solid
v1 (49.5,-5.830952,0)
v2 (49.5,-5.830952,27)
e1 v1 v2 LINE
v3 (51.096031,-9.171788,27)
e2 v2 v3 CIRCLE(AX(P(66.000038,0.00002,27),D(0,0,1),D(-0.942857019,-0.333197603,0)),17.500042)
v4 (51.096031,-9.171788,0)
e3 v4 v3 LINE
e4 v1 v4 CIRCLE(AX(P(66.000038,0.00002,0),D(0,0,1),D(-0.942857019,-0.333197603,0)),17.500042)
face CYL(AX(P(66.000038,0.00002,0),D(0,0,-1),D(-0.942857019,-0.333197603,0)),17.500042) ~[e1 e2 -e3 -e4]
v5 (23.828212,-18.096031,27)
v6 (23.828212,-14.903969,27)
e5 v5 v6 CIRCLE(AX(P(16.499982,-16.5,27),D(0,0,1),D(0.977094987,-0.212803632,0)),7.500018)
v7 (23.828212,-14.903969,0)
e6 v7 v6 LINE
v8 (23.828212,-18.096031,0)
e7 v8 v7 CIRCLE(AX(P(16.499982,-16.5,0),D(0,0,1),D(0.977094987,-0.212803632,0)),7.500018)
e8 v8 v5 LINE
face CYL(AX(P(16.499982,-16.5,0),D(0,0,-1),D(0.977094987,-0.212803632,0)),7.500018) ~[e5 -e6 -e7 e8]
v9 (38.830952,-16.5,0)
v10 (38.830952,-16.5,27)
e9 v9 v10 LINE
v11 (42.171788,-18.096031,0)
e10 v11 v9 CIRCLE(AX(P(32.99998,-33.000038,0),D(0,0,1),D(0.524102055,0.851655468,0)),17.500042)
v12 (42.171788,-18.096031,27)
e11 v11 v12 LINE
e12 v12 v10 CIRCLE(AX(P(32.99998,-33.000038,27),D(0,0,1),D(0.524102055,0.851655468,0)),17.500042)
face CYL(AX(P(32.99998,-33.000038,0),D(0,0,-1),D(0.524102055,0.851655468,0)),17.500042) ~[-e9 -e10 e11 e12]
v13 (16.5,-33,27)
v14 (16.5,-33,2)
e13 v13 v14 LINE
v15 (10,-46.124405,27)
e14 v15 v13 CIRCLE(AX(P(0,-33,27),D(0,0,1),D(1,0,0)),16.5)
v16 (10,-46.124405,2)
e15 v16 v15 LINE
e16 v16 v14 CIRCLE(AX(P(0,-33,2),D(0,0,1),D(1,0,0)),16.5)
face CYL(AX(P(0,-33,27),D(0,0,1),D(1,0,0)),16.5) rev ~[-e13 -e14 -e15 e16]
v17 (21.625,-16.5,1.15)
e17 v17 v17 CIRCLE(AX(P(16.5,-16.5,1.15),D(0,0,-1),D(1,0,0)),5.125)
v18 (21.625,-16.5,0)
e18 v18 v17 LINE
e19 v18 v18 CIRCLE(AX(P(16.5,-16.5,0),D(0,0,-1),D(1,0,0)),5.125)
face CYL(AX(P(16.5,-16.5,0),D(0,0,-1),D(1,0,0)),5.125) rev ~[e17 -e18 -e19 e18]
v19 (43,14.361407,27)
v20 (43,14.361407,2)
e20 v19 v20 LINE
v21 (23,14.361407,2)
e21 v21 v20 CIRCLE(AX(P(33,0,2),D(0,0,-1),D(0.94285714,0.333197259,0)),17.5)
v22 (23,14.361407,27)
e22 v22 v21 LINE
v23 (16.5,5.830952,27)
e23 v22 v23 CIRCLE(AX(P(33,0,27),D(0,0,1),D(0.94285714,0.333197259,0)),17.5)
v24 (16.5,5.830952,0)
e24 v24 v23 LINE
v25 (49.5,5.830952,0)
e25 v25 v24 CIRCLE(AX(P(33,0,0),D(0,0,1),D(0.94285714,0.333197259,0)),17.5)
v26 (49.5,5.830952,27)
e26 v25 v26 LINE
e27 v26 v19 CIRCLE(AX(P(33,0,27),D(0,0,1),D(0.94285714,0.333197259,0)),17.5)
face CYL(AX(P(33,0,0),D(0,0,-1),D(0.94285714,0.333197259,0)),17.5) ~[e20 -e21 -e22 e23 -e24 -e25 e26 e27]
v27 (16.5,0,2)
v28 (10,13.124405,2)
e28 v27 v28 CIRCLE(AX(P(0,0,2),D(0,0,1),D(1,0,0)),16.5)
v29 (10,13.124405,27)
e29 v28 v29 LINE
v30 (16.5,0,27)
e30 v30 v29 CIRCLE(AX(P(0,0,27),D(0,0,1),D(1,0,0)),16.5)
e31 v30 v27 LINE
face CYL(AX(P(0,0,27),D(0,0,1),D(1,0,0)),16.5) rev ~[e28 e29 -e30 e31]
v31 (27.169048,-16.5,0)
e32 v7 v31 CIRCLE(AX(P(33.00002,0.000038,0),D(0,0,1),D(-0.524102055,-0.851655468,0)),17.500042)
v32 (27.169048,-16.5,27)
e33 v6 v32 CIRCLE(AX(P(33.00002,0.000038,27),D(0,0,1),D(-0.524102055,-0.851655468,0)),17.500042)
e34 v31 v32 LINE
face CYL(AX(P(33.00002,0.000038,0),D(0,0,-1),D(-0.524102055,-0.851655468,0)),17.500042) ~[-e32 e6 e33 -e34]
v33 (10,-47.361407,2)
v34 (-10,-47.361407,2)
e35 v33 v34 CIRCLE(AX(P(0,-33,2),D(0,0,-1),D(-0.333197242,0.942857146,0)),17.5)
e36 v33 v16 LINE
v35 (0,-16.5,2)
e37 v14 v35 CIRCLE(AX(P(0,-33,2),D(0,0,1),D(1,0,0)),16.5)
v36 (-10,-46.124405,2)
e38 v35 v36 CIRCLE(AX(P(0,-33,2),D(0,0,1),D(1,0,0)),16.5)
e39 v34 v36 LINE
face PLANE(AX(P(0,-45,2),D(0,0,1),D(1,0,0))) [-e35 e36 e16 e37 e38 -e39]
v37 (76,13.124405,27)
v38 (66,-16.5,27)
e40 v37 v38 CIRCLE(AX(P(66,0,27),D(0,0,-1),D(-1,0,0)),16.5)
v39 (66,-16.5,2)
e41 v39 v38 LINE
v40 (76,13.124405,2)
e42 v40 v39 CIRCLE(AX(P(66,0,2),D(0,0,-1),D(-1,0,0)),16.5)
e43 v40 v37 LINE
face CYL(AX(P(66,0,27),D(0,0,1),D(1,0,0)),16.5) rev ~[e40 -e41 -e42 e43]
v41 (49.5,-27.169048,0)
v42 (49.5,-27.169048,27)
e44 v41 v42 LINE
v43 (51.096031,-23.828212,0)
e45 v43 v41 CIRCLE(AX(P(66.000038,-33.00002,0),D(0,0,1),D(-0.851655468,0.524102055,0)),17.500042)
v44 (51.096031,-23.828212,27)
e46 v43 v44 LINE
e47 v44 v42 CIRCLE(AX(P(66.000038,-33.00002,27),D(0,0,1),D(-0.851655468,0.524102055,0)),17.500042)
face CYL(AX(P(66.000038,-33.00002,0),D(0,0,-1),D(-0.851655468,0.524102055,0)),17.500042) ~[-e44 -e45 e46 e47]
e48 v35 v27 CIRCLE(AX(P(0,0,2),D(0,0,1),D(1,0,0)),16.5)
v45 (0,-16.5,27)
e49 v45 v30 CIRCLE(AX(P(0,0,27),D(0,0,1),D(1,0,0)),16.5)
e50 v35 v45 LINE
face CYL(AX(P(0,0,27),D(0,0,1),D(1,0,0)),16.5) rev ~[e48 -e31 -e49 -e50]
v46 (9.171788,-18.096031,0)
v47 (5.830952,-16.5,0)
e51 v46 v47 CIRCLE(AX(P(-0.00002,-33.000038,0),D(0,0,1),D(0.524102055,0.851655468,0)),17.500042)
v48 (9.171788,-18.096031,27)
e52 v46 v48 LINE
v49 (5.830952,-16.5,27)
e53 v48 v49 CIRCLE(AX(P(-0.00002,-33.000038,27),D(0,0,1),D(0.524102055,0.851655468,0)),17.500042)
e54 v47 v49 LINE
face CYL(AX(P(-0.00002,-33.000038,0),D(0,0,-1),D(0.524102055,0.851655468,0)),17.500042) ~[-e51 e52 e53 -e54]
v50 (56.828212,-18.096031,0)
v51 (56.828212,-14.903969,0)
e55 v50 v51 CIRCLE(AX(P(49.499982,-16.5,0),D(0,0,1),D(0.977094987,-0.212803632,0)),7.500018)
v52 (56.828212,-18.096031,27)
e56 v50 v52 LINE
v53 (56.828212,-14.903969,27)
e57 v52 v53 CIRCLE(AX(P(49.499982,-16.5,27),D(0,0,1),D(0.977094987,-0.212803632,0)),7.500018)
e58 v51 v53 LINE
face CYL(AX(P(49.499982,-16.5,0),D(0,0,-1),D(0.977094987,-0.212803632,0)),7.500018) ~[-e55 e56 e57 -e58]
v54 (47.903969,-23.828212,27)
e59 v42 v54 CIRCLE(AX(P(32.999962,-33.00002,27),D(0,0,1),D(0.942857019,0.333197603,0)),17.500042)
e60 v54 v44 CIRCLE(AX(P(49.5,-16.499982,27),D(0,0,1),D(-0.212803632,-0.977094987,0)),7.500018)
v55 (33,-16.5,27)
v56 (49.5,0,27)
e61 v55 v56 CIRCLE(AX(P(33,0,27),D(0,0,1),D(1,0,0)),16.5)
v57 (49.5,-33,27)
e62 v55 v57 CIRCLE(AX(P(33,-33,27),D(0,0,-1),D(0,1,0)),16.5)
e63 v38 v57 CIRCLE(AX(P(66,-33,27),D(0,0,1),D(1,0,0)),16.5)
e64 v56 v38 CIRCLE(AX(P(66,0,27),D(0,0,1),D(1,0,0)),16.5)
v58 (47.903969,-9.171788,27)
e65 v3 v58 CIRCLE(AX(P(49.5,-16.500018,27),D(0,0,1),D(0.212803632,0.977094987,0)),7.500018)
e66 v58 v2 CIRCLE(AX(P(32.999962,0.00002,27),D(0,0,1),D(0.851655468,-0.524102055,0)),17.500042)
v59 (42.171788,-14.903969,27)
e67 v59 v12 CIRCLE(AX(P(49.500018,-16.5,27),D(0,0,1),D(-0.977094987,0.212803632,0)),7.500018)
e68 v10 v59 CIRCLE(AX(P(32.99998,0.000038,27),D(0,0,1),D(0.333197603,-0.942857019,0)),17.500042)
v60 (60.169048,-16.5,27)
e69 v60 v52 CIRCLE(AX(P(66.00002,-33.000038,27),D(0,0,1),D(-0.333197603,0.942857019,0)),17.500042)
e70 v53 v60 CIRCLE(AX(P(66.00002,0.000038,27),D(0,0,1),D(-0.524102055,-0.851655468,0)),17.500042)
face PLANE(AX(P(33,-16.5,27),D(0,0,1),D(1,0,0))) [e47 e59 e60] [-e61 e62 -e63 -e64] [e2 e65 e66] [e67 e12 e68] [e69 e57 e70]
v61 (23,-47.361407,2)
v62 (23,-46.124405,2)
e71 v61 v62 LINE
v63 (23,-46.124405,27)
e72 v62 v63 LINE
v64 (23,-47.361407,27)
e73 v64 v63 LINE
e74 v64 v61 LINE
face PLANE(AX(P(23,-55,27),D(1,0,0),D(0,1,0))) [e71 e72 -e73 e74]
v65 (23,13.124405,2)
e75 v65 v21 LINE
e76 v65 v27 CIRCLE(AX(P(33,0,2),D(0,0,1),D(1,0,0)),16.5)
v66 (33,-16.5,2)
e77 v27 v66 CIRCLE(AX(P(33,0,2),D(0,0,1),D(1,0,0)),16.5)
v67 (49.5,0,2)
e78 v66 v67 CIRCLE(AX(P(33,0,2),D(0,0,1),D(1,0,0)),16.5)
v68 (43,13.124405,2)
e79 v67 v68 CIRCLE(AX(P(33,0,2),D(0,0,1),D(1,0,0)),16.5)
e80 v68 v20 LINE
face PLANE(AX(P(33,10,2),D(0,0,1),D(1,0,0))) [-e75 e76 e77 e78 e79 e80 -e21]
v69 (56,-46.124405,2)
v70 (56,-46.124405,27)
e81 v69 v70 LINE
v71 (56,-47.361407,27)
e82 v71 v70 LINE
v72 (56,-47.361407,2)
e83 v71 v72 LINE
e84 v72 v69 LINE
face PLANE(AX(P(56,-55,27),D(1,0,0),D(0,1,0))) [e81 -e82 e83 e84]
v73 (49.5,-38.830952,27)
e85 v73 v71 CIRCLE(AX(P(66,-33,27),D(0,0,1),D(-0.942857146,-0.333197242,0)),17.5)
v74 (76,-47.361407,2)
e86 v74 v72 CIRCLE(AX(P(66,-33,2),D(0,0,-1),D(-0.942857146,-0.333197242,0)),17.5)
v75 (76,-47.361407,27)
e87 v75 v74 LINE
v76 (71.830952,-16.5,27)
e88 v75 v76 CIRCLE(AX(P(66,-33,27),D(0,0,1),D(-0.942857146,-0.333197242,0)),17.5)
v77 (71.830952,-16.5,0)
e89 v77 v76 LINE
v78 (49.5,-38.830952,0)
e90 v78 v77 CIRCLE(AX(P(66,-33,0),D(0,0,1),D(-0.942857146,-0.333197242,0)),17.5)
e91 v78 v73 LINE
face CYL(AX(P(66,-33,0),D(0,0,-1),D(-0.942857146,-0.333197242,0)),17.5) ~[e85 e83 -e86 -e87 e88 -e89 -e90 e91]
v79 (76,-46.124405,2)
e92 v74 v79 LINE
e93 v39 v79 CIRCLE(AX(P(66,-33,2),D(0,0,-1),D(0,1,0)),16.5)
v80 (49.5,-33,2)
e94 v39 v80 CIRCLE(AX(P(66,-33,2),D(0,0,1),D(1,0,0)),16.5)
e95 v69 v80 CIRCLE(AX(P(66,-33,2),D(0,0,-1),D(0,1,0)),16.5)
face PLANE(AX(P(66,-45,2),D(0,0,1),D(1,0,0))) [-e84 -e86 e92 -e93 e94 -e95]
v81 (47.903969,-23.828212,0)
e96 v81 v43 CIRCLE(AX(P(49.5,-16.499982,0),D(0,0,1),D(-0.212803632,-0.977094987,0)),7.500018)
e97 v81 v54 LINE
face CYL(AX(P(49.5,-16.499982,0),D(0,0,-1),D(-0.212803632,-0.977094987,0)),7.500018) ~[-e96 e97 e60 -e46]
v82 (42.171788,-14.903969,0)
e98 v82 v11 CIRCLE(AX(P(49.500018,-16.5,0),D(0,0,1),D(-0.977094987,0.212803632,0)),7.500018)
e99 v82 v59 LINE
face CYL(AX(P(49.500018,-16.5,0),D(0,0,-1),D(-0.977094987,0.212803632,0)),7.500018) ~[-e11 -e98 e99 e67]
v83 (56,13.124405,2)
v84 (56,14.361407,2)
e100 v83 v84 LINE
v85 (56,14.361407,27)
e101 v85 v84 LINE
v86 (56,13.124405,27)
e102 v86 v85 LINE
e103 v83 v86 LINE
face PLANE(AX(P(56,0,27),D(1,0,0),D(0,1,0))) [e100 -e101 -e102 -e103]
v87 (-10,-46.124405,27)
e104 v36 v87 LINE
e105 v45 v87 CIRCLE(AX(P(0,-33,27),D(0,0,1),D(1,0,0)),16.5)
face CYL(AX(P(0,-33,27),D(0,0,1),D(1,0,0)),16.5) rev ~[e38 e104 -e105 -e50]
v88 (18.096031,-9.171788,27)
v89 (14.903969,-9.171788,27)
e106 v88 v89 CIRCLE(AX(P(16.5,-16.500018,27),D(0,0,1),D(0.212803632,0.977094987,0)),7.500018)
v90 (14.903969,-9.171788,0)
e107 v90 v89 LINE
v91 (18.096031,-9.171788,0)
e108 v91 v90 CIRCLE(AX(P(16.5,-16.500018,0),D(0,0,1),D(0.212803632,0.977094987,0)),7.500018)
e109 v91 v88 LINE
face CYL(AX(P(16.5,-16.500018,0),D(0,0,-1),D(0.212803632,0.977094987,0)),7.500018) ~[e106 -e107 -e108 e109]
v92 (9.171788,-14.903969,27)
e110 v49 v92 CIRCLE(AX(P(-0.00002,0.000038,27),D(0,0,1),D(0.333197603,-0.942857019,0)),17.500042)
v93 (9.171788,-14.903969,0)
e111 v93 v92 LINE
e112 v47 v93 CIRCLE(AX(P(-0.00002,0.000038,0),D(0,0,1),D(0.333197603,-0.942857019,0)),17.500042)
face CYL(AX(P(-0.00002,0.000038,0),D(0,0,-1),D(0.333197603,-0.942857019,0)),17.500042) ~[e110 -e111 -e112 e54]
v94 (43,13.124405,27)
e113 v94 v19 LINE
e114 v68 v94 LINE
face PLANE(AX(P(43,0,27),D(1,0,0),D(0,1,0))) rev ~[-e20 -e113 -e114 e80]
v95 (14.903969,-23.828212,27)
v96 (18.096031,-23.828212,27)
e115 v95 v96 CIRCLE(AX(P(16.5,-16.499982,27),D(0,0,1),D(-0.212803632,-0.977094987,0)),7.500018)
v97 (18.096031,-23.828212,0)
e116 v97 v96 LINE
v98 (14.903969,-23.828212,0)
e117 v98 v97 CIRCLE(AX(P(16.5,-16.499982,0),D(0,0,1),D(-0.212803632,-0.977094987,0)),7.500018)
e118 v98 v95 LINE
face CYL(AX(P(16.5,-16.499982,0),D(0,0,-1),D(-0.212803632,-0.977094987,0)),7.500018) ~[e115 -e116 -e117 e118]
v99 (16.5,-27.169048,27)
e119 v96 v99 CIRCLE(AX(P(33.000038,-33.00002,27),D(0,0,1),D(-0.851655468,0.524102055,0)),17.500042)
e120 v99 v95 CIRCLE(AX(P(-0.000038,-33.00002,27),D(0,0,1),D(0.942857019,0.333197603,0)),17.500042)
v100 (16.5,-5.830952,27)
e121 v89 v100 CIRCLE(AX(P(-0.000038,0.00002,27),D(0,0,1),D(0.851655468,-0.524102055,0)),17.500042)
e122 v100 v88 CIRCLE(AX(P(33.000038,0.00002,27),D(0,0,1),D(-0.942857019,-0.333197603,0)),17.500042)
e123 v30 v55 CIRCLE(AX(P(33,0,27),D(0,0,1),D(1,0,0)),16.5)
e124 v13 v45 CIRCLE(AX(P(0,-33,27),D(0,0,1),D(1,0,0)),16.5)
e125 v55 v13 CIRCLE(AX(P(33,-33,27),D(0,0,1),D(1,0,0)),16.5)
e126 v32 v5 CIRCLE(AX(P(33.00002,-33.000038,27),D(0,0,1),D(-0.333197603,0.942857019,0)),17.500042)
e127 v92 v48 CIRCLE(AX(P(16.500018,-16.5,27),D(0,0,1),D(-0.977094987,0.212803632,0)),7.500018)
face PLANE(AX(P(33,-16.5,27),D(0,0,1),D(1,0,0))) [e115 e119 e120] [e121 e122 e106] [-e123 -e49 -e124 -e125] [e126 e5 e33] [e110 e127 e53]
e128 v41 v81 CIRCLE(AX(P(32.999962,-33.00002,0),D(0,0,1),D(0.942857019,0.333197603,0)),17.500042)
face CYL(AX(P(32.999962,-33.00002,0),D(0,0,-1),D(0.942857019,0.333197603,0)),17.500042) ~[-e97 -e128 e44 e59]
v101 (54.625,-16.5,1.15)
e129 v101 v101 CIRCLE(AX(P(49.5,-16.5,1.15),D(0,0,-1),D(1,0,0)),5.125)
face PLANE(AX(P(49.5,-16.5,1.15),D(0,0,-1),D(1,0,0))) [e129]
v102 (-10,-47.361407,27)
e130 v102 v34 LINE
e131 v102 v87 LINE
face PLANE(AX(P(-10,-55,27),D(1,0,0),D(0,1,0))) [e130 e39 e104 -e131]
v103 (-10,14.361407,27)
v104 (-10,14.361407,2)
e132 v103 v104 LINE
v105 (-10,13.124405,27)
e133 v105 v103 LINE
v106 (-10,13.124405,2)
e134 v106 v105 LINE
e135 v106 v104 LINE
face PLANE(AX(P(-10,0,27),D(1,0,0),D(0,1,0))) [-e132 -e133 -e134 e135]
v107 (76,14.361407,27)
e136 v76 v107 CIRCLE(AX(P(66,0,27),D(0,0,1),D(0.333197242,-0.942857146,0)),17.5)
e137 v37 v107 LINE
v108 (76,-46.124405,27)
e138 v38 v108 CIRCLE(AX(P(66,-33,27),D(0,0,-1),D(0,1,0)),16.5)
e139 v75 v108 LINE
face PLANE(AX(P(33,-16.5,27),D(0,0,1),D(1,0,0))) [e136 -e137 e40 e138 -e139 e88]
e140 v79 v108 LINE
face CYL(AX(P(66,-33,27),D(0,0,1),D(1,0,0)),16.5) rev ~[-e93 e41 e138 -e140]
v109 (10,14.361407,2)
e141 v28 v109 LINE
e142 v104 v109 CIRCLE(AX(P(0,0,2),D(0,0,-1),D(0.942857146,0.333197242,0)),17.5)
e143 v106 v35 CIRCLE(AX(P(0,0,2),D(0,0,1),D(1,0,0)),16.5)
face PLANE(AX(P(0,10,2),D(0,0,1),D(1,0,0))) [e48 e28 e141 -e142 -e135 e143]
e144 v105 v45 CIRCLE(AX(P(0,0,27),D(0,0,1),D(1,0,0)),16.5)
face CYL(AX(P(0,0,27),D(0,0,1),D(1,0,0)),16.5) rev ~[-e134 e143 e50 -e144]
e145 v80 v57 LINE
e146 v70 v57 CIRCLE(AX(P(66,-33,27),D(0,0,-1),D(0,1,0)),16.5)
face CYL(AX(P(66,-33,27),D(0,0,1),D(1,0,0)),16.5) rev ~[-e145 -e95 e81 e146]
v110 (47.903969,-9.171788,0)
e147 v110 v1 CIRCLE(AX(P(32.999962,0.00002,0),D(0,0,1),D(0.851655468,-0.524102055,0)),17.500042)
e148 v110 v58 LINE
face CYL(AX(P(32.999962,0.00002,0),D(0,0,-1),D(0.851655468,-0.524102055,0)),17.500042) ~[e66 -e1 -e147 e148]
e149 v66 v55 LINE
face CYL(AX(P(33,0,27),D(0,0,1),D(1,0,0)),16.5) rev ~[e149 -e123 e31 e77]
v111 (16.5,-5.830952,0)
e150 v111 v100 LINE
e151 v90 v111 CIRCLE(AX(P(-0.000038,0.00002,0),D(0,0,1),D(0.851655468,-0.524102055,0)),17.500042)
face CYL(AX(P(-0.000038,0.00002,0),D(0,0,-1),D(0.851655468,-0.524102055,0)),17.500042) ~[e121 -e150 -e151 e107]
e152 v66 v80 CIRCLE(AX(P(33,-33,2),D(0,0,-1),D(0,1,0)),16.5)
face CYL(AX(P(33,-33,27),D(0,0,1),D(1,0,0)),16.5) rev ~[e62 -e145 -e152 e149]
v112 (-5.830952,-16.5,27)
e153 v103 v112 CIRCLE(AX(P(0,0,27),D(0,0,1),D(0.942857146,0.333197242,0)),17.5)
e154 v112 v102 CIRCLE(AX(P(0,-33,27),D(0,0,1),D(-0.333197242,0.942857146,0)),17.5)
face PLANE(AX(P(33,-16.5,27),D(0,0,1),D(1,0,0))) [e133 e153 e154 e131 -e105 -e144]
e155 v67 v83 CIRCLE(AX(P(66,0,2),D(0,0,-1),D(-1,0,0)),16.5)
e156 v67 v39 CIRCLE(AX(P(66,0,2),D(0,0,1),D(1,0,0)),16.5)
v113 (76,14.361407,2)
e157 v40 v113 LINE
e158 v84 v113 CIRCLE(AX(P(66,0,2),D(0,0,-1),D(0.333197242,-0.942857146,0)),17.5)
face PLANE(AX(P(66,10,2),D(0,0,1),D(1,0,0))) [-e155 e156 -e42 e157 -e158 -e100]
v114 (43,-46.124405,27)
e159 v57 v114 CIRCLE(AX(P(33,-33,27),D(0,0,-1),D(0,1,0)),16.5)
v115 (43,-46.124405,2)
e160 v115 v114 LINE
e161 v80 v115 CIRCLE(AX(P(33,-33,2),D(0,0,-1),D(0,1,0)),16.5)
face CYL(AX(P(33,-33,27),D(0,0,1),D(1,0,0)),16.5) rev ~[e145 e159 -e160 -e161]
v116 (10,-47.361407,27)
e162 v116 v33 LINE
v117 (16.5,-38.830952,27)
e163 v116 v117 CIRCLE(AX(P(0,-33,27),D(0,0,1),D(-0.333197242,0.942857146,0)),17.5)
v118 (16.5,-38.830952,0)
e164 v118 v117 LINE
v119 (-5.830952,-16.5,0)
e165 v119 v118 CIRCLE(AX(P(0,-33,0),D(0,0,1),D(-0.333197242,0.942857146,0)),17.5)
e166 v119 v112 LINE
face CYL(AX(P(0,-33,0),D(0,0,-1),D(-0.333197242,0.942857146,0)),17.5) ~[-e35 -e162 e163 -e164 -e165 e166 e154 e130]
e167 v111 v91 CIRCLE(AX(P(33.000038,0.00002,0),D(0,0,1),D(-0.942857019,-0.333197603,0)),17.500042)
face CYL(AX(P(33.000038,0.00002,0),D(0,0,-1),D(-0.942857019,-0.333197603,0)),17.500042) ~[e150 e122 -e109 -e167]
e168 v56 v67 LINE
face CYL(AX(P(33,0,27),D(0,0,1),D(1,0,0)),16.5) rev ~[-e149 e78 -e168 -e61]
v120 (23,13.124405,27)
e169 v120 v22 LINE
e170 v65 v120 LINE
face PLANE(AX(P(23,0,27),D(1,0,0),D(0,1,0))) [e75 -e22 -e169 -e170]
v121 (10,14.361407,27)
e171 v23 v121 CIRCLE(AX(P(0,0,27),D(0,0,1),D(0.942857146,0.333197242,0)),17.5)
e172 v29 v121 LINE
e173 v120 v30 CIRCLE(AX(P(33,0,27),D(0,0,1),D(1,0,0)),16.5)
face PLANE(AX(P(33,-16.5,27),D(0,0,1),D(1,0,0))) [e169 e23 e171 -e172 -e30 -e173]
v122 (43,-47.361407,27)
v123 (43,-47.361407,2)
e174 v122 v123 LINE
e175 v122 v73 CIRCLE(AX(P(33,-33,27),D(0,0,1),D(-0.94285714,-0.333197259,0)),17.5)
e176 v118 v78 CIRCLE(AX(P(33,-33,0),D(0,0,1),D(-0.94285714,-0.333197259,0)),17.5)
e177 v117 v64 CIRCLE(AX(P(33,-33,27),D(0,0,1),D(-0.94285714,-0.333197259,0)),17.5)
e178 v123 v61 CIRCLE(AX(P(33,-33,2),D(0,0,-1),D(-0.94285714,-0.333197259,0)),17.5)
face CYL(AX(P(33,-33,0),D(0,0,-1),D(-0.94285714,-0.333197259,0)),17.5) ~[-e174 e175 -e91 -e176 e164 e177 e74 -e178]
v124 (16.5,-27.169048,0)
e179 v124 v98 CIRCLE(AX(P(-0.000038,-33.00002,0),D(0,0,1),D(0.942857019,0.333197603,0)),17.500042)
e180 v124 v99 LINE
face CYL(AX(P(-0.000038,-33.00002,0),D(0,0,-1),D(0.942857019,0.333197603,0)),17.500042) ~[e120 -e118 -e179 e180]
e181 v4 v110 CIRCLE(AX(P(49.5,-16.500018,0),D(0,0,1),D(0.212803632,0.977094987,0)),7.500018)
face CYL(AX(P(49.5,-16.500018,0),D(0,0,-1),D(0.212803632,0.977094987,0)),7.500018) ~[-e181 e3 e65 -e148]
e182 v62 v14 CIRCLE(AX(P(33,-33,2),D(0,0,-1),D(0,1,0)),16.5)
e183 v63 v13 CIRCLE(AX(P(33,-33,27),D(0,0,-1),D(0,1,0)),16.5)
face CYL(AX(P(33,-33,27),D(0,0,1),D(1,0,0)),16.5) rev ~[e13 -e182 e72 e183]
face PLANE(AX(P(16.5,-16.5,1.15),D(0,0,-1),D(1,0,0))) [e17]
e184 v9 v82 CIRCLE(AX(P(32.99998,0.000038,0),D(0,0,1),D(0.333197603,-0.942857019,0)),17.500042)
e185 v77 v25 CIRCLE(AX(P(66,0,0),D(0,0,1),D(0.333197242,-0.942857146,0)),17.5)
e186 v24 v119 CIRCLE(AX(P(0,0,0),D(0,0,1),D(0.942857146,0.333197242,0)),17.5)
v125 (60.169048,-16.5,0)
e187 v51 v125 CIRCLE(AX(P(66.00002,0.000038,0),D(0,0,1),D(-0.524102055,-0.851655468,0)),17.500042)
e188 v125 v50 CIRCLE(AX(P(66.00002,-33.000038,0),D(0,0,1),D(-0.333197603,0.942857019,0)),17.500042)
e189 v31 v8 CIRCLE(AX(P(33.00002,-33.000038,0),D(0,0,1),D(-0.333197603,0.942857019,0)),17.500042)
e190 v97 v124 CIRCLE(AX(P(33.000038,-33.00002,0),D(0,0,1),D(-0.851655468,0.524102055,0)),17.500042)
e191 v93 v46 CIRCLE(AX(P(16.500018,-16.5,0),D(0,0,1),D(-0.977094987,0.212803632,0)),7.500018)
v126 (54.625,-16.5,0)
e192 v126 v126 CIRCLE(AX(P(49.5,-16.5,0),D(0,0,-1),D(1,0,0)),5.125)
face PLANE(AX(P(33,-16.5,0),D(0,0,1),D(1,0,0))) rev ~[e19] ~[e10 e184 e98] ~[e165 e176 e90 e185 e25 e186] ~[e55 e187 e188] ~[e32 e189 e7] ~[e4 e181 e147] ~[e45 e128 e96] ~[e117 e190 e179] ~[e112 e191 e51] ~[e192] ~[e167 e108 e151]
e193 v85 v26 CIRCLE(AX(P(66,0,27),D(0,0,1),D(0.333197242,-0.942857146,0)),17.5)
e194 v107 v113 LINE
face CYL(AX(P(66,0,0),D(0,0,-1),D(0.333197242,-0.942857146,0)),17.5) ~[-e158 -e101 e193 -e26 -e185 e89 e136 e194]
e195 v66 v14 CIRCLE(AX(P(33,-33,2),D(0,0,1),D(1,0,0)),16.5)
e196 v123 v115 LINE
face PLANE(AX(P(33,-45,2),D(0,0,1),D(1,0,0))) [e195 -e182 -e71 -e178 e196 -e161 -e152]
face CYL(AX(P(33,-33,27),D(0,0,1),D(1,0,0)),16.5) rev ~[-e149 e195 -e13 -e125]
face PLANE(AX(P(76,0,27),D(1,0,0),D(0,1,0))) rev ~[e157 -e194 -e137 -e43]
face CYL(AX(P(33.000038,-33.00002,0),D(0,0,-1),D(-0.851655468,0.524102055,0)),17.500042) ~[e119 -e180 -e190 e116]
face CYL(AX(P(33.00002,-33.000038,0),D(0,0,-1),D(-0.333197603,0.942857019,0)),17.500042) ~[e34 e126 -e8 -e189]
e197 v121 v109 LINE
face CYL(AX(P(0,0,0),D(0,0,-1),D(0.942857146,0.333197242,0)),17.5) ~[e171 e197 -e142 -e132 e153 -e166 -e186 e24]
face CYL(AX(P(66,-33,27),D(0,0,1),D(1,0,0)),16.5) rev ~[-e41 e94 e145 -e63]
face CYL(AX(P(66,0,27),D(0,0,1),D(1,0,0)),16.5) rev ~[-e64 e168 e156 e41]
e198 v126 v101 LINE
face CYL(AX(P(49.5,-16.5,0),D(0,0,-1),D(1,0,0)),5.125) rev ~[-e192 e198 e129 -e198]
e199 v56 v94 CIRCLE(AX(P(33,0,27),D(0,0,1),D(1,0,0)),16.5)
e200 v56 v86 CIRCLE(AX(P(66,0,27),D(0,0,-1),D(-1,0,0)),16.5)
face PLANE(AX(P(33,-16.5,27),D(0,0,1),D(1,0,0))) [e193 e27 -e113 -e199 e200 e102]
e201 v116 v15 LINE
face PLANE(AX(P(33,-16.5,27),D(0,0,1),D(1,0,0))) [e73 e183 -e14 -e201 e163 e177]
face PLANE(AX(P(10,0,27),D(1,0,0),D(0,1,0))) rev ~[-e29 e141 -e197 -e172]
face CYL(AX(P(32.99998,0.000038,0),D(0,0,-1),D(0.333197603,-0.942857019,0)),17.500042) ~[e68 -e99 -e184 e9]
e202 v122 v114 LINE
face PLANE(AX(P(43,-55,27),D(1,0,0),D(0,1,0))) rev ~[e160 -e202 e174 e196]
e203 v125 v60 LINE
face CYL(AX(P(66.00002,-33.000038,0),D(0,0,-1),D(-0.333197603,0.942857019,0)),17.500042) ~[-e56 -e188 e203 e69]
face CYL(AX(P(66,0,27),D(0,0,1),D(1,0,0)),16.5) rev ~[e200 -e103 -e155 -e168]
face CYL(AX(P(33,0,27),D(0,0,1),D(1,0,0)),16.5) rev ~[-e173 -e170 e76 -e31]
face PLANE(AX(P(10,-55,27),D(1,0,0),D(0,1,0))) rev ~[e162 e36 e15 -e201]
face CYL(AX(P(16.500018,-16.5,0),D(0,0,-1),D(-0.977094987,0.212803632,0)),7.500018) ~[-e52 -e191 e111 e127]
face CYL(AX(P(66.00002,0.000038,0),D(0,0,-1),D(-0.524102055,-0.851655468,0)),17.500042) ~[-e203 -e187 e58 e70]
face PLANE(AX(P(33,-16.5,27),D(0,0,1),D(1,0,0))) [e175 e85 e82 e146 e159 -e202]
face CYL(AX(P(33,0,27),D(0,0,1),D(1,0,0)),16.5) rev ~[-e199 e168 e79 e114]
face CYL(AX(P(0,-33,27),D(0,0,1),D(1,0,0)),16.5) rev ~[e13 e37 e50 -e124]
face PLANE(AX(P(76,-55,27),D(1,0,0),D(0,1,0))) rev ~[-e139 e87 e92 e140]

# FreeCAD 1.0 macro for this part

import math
import FreeCAD as App
import Part
import Sketcher

doc = App.newDocument("Part")
params = doc.addObject("Spreadsheet::Sheet", "Params")
for row, (alias, value) in enumerate([
    ("sketch1_radius", "17.5 mm"),
    ("pad1_length", "27 mm"),
    ("sketch2_diameter", "33 mm"),
    ("pocket1_length", "25 mm"),
    ("sketch3_diameter", "33 mm"),
    ("pocket2_length", "25 mm"),
    ("sketch4_diameter", "33 mm"),
    ("pocket3_length", "25 mm"),
    ("sketch5_diameter", "33 mm"),
    ("pocket4_length", "25 mm"),
    ("sketch6_diameter", "33 mm"),
    ("pocket5_length", "25 mm"),
    ("sketch7_diameter", "33 mm"),
    ("pocket6_length", "25 mm"),
    ("sketch8_diameter", "10.25 mm"),
    ("pocket7_length", "1.15 mm"),
    ("sketch9_diameter", "10.25 mm"),
    ("pocket8_length", "1.15 mm"),
    ("sketch10_width", "20 mm"),
    ("pocket9_length", "25 mm"),
], start=1):
    params.set(f"A{row}", alias)
    params.set(f"B{row}", "=" + value)
    params.setAlias(f"B{row}", alias)

body = doc.addObject("PartDesign::Body", "Body")

# Sketch on XY plane
sketch1 = body.newObject("Sketcher::SketchObject", "Sketch")
sketch1.AttachmentSupport = (doc.getObject("XY_Plane"), [""])
sketch1.MapMode = "FlatFace"
sketch1.addGeometry(Part.ArcOfCircle(Part.Circle(App.Vector(66, 0, 0), App.Vector(0, 0, 1), 17.5), math.radians(-71), math.radians(161)), False)
sketch1.addGeometry(Part.ArcOfCircle(Part.Circle(App.Vector(33, 0, 0), App.Vector(0, 0, 1), 17.5), math.radians(19), math.radians(161)), False)
sketch1.addGeometry(Part.ArcOfCircle(Part.Circle(App.Vector(0, 0, 0), App.Vector(0, 0, 1), 17.5), math.radians(19), math.radians(251)), False)
sketch1.addGeometry(Part.ArcOfCircle(Part.Circle(App.Vector(0, -33, 0), App.Vector(0, 0, 1), 17.5), math.radians(109), math.radians(341)), False)
sketch1.addGeometry(Part.ArcOfCircle(Part.Circle(App.Vector(33, -33, 0), App.Vector(0, 0, 1), 17.5), math.radians(-161), math.radians(-19)), False)
sketch1.addGeometry(Part.ArcOfCircle(Part.Circle(App.Vector(66, -33, 0), App.Vector(0, 0, 1), 17.5), math.radians(-161), math.radians(71)), False)
sketch1.addGeometry(Part.ArcOfCircle(Part.Circle(App.Vector(16.5, -16.5, 0), App.Vector(0, 0, 1), 7.5), math.radians(-102), math.radians(-78)), False)
sketch1.addGeometry(Part.ArcOfCircle(Part.Circle(App.Vector(33, -33, 0), App.Vector(0, 0, 1), 17.5), math.radians(148.39), math.radians(160.54)), False)
sketch1.addGeometry(Part.ArcOfCircle(Part.Circle(App.Vector(0, -33, 0), App.Vector(0, 0, 1), 17.5), math.radians(19.46), math.radians(31.61)), False)
sketch1.addGeometry(Part.ArcOfCircle(Part.Circle(App.Vector(0, -33, 0), App.Vector(0, 0, 1), 17.5), math.radians(58.39), math.radians(70.54)), False)
sketch1.addGeometry(Part.ArcOfCircle(Part.Circle(App.Vector(0, 0, 0), App.Vector(0, 0, 1), 17.5), math.radians(-70.54), math.radians(-58.39)), False)
sketch1.addGeometry(Part.ArcOfCircle(Part.Circle(App.Vector(16.5, -16.5, 0), App.Vector(0, 0, 1), 7.5), math.radians(168), math.radians(192)), False)
sketch1.addGeometry(Part.ArcOfCircle(Part.Circle(App.Vector(33, -33, 0), App.Vector(0, 0, 1), 17.5), math.radians(109.46), math.radians(121.61)), False)
sketch1.addGeometry(Part.ArcOfCircle(Part.Circle(App.Vector(16.5, -16.5, 0), App.Vector(0, 0, 1), 7.5), math.radians(-12), math.radians(12)), False)
sketch1.addGeometry(Part.ArcOfCircle(Part.Circle(App.Vector(33, 0, 0), App.Vector(0, 0, 1), 17.5), math.radians(-121.61), math.radians(-109.46)), False)
sketch1.addGeometry(Part.ArcOfCircle(Part.Circle(App.Vector(33, -33, 0), App.Vector(0, 0, 1), 17.5), math.radians(19.46), math.radians(31.61)), False)
sketch1.addGeometry(Part.ArcOfCircle(Part.Circle(App.Vector(49.5, -16.5, 0), App.Vector(0, 0, 1), 7.5), math.radians(-102), math.radians(-78)), False)
sketch1.addGeometry(Part.ArcOfCircle(Part.Circle(App.Vector(66, -33, 0), App.Vector(0, 0, 1), 17.5), math.radians(148.39), math.radians(160.54)), False)
sketch1.addGeometry(Part.ArcOfCircle(Part.Circle(App.Vector(49.5, -16.5, 0), App.Vector(0, 0, 1), 7.5), math.radians(168), math.radians(192)), False)
sketch1.addGeometry(Part.ArcOfCircle(Part.Circle(App.Vector(33, -33, 0), App.Vector(0, 0, 1), 17.5), math.radians(58.39), math.radians(70.54)), False)
sketch1.addGeometry(Part.ArcOfCircle(Part.Circle(App.Vector(33, 0, 0), App.Vector(0, 0, 1), 17.5), math.radians(-70.54), math.radians(-58.39)), False)
sketch1.addGeometry(Part.ArcOfCircle(Part.Circle(App.Vector(66, -33, 0), App.Vector(0, 0, 1), 17.5), math.radians(109.46), math.radians(121.61)), False)
sketch1.addGeometry(Part.ArcOfCircle(Part.Circle(App.Vector(49.5, -16.5, 0), App.Vector(0, 0, 1), 7.5), math.radians(-12), math.radians(12)), False)
sketch1.addGeometry(Part.ArcOfCircle(Part.Circle(App.Vector(66, 0, 0), App.Vector(0, 0, 1), 17.5), math.radians(-121.61), math.radians(-109.46)), False)
sketch1.addGeometry(Part.ArcOfCircle(Part.Circle(App.Vector(16.5, -16.5, 0), App.Vector(0, 0, 1), 7.5), math.radians(78), math.radians(102)), False)
sketch1.addGeometry(Part.ArcOfCircle(Part.Circle(App.Vector(0, 0, 0), App.Vector(0, 0, 1), 17.5), math.radians(-31.61), math.radians(-19.46)), False)
sketch1.addGeometry(Part.ArcOfCircle(Part.Circle(App.Vector(33, 0, 0), App.Vector(0, 0, 1), 17.5), math.radians(-160.54), math.radians(-148.39)), False)
sketch1.addGeometry(Part.ArcOfCircle(Part.Circle(App.Vector(49.5, -16.5, 0), App.Vector(0, 0, 1), 7.5), math.radians(78), math.radians(102)), False)
sketch1.addGeometry(Part.ArcOfCircle(Part.Circle(App.Vector(33, 0, 0), App.Vector(0, 0, 1), 17.5), math.radians(-31.61), math.radians(-19.46)), False)
sketch1.addGeometry(Part.ArcOfCircle(Part.Circle(App.Vector(66, 0, 0), App.Vector(0, 0, 1), 17.5), math.radians(-160.54), math.radians(-148.39)), False)
sketch1.addConstraint(Sketcher.Constraint("Coincident", 0, 2, 1, 1))
sketch1.addConstraint(Sketcher.Constraint("Coincident", 1, 2, 2, 1))
sketch1.addConstraint(Sketcher.Constraint("Coincident", 2, 2, 3, 1))
sketch1.addConstraint(Sketcher.Constraint("Coincident", 3, 2, 4, 1))
sketch1.addConstraint(Sketcher.Constraint("Coincident", 4, 2, 5, 1))
sketch1.addConstraint(Sketcher.Constraint("Coincident", 5, 2, 0, 1))
sketch1.addConstraint(Sketcher.Constraint("Coincident", 6, 2, 7, 1))
sketch1.addConstraint(Sketcher.Constraint("Coincident", 7, 2, 8, 1))
sketch1.addConstraint(Sketcher.Constraint("Coincident", 8, 2, 6, 1))
sketch1.addConstraint(Sketcher.Constraint("Coincident", 9, 2, 10, 1))
sketch1.addConstraint(Sketcher.Constraint("Coincident", 10, 2, 11, 1))
sketch1.addConstraint(Sketcher.Constraint("Coincident", 11, 2, 9, 1))
sketch1.addConstraint(Sketcher.Constraint("Coincident", 12, 2, 13, 1))
sketch1.addConstraint(Sketcher.Constraint("Coincident", 13, 2, 14, 1))
sketch1.addConstraint(Sketcher.Constraint("Coincident", 14, 2, 12, 1))
sketch1.addConstraint(Sketcher.Constraint("Coincident", 15, 2, 16, 1))
sketch1.addConstraint(Sketcher.Constraint("Coincident", 16, 2, 17, 1))
sketch1.addConstraint(Sketcher.Constraint("Coincident", 17, 2, 15, 1))
sketch1.addConstraint(Sketcher.Constraint("Coincident", 18, 2, 19, 1))
sketch1.addConstraint(Sketcher.Constraint("Coincident", 19, 2, 20, 1))
sketch1.addConstraint(Sketcher.Constraint("Coincident", 20, 2, 18, 1))
sketch1.addConstraint(Sketcher.Constraint("Coincident", 21, 2, 22, 1))
sketch1.addConstraint(Sketcher.Constraint("Coincident", 22, 2, 23, 1))
sketch1.addConstraint(Sketcher.Constraint("Coincident", 23, 2, 21, 1))
sketch1.addConstraint(Sketcher.Constraint("Coincident", 24, 2, 25, 1))
sketch1.addConstraint(Sketcher.Constraint("Coincident", 25, 2, 26, 1))
sketch1.addConstraint(Sketcher.Constraint("Coincident", 26, 2, 24, 1))
sketch1.addConstraint(Sketcher.Constraint("Coincident", 27, 2, 28, 1))
sketch1.addConstraint(Sketcher.Constraint("Coincident", 28, 2, 29, 1))
sketch1.addConstraint(Sketcher.Constraint("Coincident", 29, 2, 27, 1))
sketch1.addConstraint(Sketcher.Constraint("Coincident", 2, 3, -1, 1))
sketch1.addConstraint(Sketcher.Constraint("Equal", 0, 1))
sketch1.addConstraint(Sketcher.Constraint("Equal", 1, 2))
sketch1.addConstraint(Sketcher.Constraint("Equal", 2, 3))
sketch1.addConstraint(Sketcher.Constraint("Equal", 3, 4))
sketch1.addConstraint(Sketcher.Constraint("Equal", 4, 5))
sketch1.addConstraint(Sketcher.Constraint("Equal", 7, 8))
sketch1.addConstraint(Sketcher.Constraint("Equal", 8, 9))
sketch1.addConstraint(Sketcher.Constraint("Equal", 9, 10))
sketch1.addConstraint(Sketcher.Constraint("Equal", 6, 11))
sketch1.addConstraint(Sketcher.Constraint("Equal", 10, 12))
sketch1.addConstraint(Sketcher.Constraint("Equal", 11, 13))
sketch1.addConstraint(Sketcher.Constraint("Equal", 12, 14))
sketch1.addConstraint(Sketcher.Constraint("Equal", 14, 15))
sketch1.addConstraint(Sketcher.Constraint("Equal", 13, 16))
sketch1.addConstraint(Sketcher.Constraint("Equal", 15, 17))
sketch1.addConstraint(Sketcher.Constraint("Equal", 16, 18))
sketch1.addConstraint(Sketcher.Constraint("Equal", 17, 19))
sketch1.addConstraint(Sketcher.Constraint("Equal", 19, 20))
sketch1.addConstraint(Sketcher.Constraint("Equal", 20, 21))
sketch1.addConstraint(Sketcher.Constraint("Equal", 18, 22))
sketch1.addConstraint(Sketcher.Constraint("Equal", 21, 23))
sketch1.addConstraint(Sketcher.Constraint("Equal", 22, 24))
sketch1.addConstraint(Sketcher.Constraint("Equal", 23, 25))
sketch1.addConstraint(Sketcher.Constraint("Equal", 25, 26))
sketch1.addConstraint(Sketcher.Constraint("Equal", 24, 27))
sketch1.addConstraint(Sketcher.Constraint("Equal", 26, 28))
sketch1.addConstraint(Sketcher.Constraint("Equal", 28, 29))
sketch1.addConstraint(Sketcher.Constraint("Symmetric", 2, 2, 9, 2, -2))
sketch1.addConstraint(Sketcher.Constraint("Symmetric", 1, 2, 25, 2, -1))
sketch1.addConstraint(Sketcher.Constraint("Symmetric", 0, 2, 28, 2, -1))
sketch1.addConstraint(Sketcher.Constraint("PointOnObject", 0, 3, -1))
sketch1.addConstraint(Sketcher.Constraint("PointOnObject", 1, 3, -1))
sketch1.addConstraint(Sketcher.Constraint("PointOnObject", 3, 3, -2))
sketch1.addConstraint(Sketcher.Constraint("Horizontal", 3, 3, 4, 3))
sketch1.addConstraint(Sketcher.Constraint("Horizontal", 4, 3, 5, 3))
sketch1.addConstraint(Sketcher.Constraint("Horizontal", 7, 3, 8, 3))
sketch1.addConstraint(Sketcher.Constraint("Horizontal", 9, 3, 12, 3))
sketch1.addConstraint(Sketcher.Constraint("Horizontal", 11, 3, 13, 3))
sketch1.addConstraint(Sketcher.Constraint("Horizontal", 10, 3, 14, 3))
sketch1.addConstraint(Sketcher.Constraint("Horizontal", 8, 3, 15, 3))
sketch1.addConstraint(Sketcher.Constraint("Horizontal", 6, 3, 16, 3))
sketch1.addConstraint(Sketcher.Constraint("Horizontal", 15, 3, 17, 3))
sketch1.addConstraint(Sketcher.Constraint("Horizontal", 13, 3, 18, 3))
sketch1.addConstraint(Sketcher.Constraint("Horizontal", 12, 3, 19, 3))
sketch1.addConstraint(Sketcher.Constraint("Horizontal", 14, 3, 20, 3))
sketch1.addConstraint(Sketcher.Constraint("Horizontal", 19, 3, 21, 3))
sketch1.addConstraint(Sketcher.Constraint("Horizontal", 18, 3, 22, 3))
sketch1.addConstraint(Sketcher.Constraint("Horizontal", 20, 3, 23, 3))
sketch1.addConstraint(Sketcher.Constraint("Horizontal", 25, 3, 26, 3))
sketch1.addConstraint(Sketcher.Constraint("Horizontal", 24, 3, 27, 3))
sketch1.addConstraint(Sketcher.Constraint("Horizontal", 26, 3, 28, 3))
sketch1.addConstraint(Sketcher.Constraint("Horizontal", 28, 3, 29, 3))
sketch1.addConstraint(Sketcher.Constraint("Horizontal", 0, 2, 1, 2))
sketch1.addConstraint(Sketcher.Constraint("Horizontal", 22, 3, 2, 2))
sketch1.addConstraint(Sketcher.Constraint("Horizontal", 3, 2, 4, 2))
sketch1.addConstraint(Sketcher.Constraint("Horizontal", 2, 2, 5, 2))
sketch1.addConstraint(Sketcher.Constraint("Horizontal", 6, 2, 8, 2))
sketch1.addConstraint(Sketcher.Constraint("Horizontal", 11, 2, 12, 2))
sketch1.addConstraint(Sketcher.Constraint("Horizontal", 10, 2, 13, 2))
sketch1.addConstraint(Sketcher.Constraint("Horizontal", 8, 2, 15, 2))
sketch1.addConstraint(Sketcher.Constraint("Horizontal", 15, 2, 16, 2))
sketch1.addConstraint(Sketcher.Constraint("Horizontal", 12, 2, 18, 2))
sketch1.addConstraint(Sketcher.Constraint("Horizontal", 14, 2, 19, 2))
sketch1.addConstraint(Sketcher.Constraint("Horizontal", 18, 2, 21, 2))
sketch1.addConstraint(Sketcher.Constraint("Horizontal", 20, 2, 22, 2))
sketch1.addConstraint(Sketcher.Constraint("Horizontal", 24, 2, 26, 2))
sketch1.addConstraint(Sketcher.Constraint("Horizontal", 26, 2, 27, 2))
sketch1.addConstraint(Sketcher.Constraint("Vertical", 9, 3, 10, 3))
sketch1.addConstraint(Sketcher.Constraint("Vertical", 6, 3, 24, 3))
sketch1.addConstraint(Sketcher.Constraint("Vertical", 8, 3, 25, 3))
sketch1.addConstraint(Sketcher.Constraint("Vertical", 16, 3, 27, 3))
sketch1.addConstraint(Sketcher.Constraint("Vertical", 8, 2, 24, 2))
sketch1.addConstraint(Sketcher.Constraint("Radius", 0, 17.5))
sketch1.addConstraint(Sketcher.Constraint("DistanceX", -1, 1, 0, 3, 66.0))
sketch1.addConstraint(Sketcher.Constraint("DistanceY", 3, 3, -1, 1, 33.0))
sketch1.addConstraint(Sketcher.Constraint("DistanceX", 14, 3, 23, 3, 33.0))
sketch1.addConstraint(Sketcher.Constraint("Radius", 6, 7.500018))
sketch1.addConstraint(Sketcher.Constraint("Radius", 7, 17.500042))
sketch1.addConstraint(Sketcher.Constraint("DistanceY", 7, 3, -1, 1, 33.00002))
sketch1.addConstraint(Sketcher.Constraint("DistanceX", -1, 1, 12, 3, 33.00002))
sketch1.addConstraint(Sketcher.Constraint("DistanceX", -1, 1, 19, 3, 32.99998))
sketch1.addConstraint(Sketcher.Constraint("DistanceX", -1, 1, 6, 2, 18.096031))
sketch1.addConstraint(Sketcher.Constraint("DistanceY", 8, 2, -1, 1, 23.828212))
sketch1.addConstraint(Sketcher.Constraint("DistanceX", -1, 1, 10, 2, 9.171788))
sketch1.addConstraint(Sketcher.Constraint("DistanceY", 10, 2, -1, 1, 14.903969))
sketch1.setExpression("Constraints[103]", "Params.sketch1_radius")
pad1 = body.newObject("PartDesign::Pad", "Pad")
pad1.Profile = sketch1
pad1.setExpression("Length", "Params.pad1_length")

# Sketch on XY plane
sketch2 = body.newObject("Sketcher::SketchObject", "Sketch001")
sketch2.AttachmentSupport = (doc.getObject("XY_Plane"), [""])
sketch2.MapMode = "FlatFace"
sketch2.AttachmentOffset = App.Placement(App.Vector(0, 0, 27), App.Rotation())
sketch2.addGeometry(Part.Circle(App.Vector(0, 0, 0), App.Vector(0, 0, 1), 16), False)
sketch2.addConstraint(Sketcher.Constraint("Coincident", 0, 3, -1, 1))
sketch2.addConstraint(Sketcher.Constraint("Diameter", 0, 33.0))
sketch2.setExpression("Constraints[1]", "Params.sketch2_diameter")
pocket1 = body.newObject("PartDesign::Pocket", "Pocket")
pocket1.Profile = sketch2
pocket1.setExpression("Length", "Params.pocket1_length")

# Sketch on XY plane
sketch3 = body.newObject("Sketcher::SketchObject", "Sketch002")
sketch3.AttachmentSupport = (doc.getObject("XY_Plane"), [""])
sketch3.MapMode = "FlatFace"
sketch3.AttachmentOffset = App.Placement(App.Vector(0, 0, 27), App.Rotation())
sketch3.addGeometry(Part.Circle(App.Vector(33, 0, 0), App.Vector(0, 0, 1), 16), False)
sketch3.addConstraint(Sketcher.Constraint("PointOnObject", 0, 3, -1))
sketch3.addConstraint(Sketcher.Constraint("Diameter", 0, 33.0))
sketch3.addConstraint(Sketcher.Constraint("DistanceX", -1, 1, 0, 3, 33.0))
sketch3.setExpression("Constraints[1]", "Params.sketch3_diameter")
pocket2 = body.newObject("PartDesign::Pocket", "Pocket001")
pocket2.Profile = sketch3
pocket2.setExpression("Length", "Params.pocket2_length")

# Sketch on XY plane
sketch4 = body.newObject("Sketcher::SketchObject", "Sketch003")
sketch4.AttachmentSupport = (doc.getObject("XY_Plane"), [""])
sketch4.MapMode = "FlatFace"
sketch4.AttachmentOffset = App.Placement(App.Vector(0, 0, 27), App.Rotation())
sketch4.addGeometry(Part.Circle(App.Vector(66, 0, 0), App.Vector(0, 0, 1), 16), False)
sketch4.addConstraint(Sketcher.Constraint("PointOnObject", 0, 3, -1))
sketch4.addConstraint(Sketcher.Constraint("Diameter", 0, 33.0))
sketch4.addConstraint(Sketcher.Constraint("DistanceX", -1, 1, 0, 3, 66.0))
sketch4.setExpression("Constraints[1]", "Params.sketch4_diameter")
pocket3 = body.newObject("PartDesign::Pocket", "Pocket002")
pocket3.Profile = sketch4
pocket3.setExpression("Length", "Params.pocket3_length")

# Sketch on XY plane
sketch5 = body.newObject("Sketcher::SketchObject", "Sketch004")
sketch5.AttachmentSupport = (doc.getObject("XY_Plane"), [""])
sketch5.MapMode = "FlatFace"
sketch5.AttachmentOffset = App.Placement(App.Vector(0, 0, 27), App.Rotation())
sketch5.addGeometry(Part.Circle(App.Vector(0, -33, 0), App.Vector(0, 0, 1), 16), False)
sketch5.addConstraint(Sketcher.Constraint("PointOnObject", 0, 3, -2))
sketch5.addConstraint(Sketcher.Constraint("Diameter", 0, 33.0))
sketch5.addConstraint(Sketcher.Constraint("DistanceY", 0, 3, -1, 1, 33.0))
sketch5.setExpression("Constraints[1]", "Params.sketch5_diameter")
pocket4 = body.newObject("PartDesign::Pocket", "Pocket003")
pocket4.Profile = sketch5
pocket4.setExpression("Length", "Params.pocket4_length")

# Sketch on XY plane
sketch6 = body.newObject("Sketcher::SketchObject", "Sketch005")
sketch6.AttachmentSupport = (doc.getObject("XY_Plane"), [""])
sketch6.MapMode = "FlatFace"
sketch6.AttachmentOffset = App.Placement(App.Vector(0, 0, 27), App.Rotation())
sketch6.addGeometry(Part.Circle(App.Vector(33, -33, 0), App.Vector(0, 0, 1), 16), False)
sketch6.addConstraint(Sketcher.Constraint("Diameter", 0, 33.0))
sketch6.addConstraint(Sketcher.Constraint("DistanceX", -1, 1, 0, 3, 33.0))
sketch6.addConstraint(Sketcher.Constraint("DistanceY", 0, 3, -1, 1, 33.0))
sketch6.setExpression("Constraints[0]", "Params.sketch6_diameter")
pocket5 = body.newObject("PartDesign::Pocket", "Pocket004")
pocket5.Profile = sketch6
pocket5.setExpression("Length", "Params.pocket5_length")

# Sketch on XY plane
sketch7 = body.newObject("Sketcher::SketchObject", "Sketch006")
sketch7.AttachmentSupport = (doc.getObject("XY_Plane"), [""])
sketch7.MapMode = "FlatFace"
sketch7.AttachmentOffset = App.Placement(App.Vector(0, 0, 27), App.Rotation())
sketch7.addGeometry(Part.Circle(App.Vector(66, -33, 0), App.Vector(0, 0, 1), 16), False)
sketch7.addConstraint(Sketcher.Constraint("Diameter", 0, 33.0))
sketch7.addConstraint(Sketcher.Constraint("DistanceX", -1, 1, 0, 3, 66.0))
sketch7.addConstraint(Sketcher.Constraint("DistanceY", 0, 3, -1, 1, 33.0))
sketch7.setExpression("Constraints[0]", "Params.sketch7_diameter")
pocket6 = body.newObject("PartDesign::Pocket", "Pocket005")
pocket6.Profile = sketch7
pocket6.setExpression("Length", "Params.pocket6_length")

# Sketch on XY plane
sketch8 = body.newObject("Sketcher::SketchObject", "Sketch007")
sketch8.AttachmentSupport = (doc.getObject("XY_Plane"), [""])
sketch8.MapMode = "FlatFace"
sketch8.addGeometry(Part.Circle(App.Vector(16, -16, 0), App.Vector(0, 0, 1), 5), False)
sketch8.addConstraint(Sketcher.Constraint("Diameter", 0, 10.25))
sketch8.addConstraint(Sketcher.Constraint("DistanceX", -1, 1, 0, 3, 16.5))
sketch8.addConstraint(Sketcher.Constraint("DistanceY", 0, 3, -1, 1, 16.5))
sketch8.setExpression("Constraints[0]", "Params.sketch8_diameter")
pocket7 = body.newObject("PartDesign::Pocket", "Pocket006")
pocket7.Profile = sketch8
pocket7.setExpression("Length", "Params.pocket7_length")
pocket7.Reversed = True

# Sketch on XY plane
sketch9 = body.newObject("Sketcher::SketchObject", "Sketch008")
sketch9.AttachmentSupport = (doc.getObject("XY_Plane"), [""])
sketch9.MapMode = "FlatFace"
sketch9.addGeometry(Part.Circle(App.Vector(50, -16, 0), App.Vector(0, 0, 1), 5), False)
sketch9.addConstraint(Sketcher.Constraint("Diameter", 0, 10.25))
sketch9.addConstraint(Sketcher.Constraint("DistanceX", -1, 1, 0, 3, 49.5))
sketch9.addConstraint(Sketcher.Constraint("DistanceY", 0, 3, -1, 1, 16.5))
sketch9.setExpression("Constraints[0]", "Params.sketch9_diameter")
pocket8 = body.newObject("PartDesign::Pocket", "Pocket007")
pocket8.Profile = sketch9
pocket8.setExpression("Length", "Params.pocket8_length")
pocket8.Reversed = True

# Sketch on XY plane
sketch10 = body.newObject("Sketcher::SketchObject", "Sketch009")
sketch10.AttachmentSupport = (doc.getObject("XY_Plane"), [""])
sketch10.MapMode = "FlatFace"
sketch10.AttachmentOffset = App.Placement(App.Vector(0, 0, 27), App.Rotation())
sketch10.addGeometry(Part.LineSegment(App.Vector(-10, 20, 0), App.Vector(-10, 0, 0)), False)
sketch10.addGeometry(Part.LineSegment(App.Vector(-10, 0, 0), App.Vector(10, 0, 0)), False)
sketch10.addGeometry(Part.LineSegment(App.Vector(10, 0, 0), App.Vector(10, 20, 0)), False)
sketch10.addGeometry(Part.LineSegment(App.Vector(10, 20, 0), App.Vector(-10, 20, 0)), False)
sketch10.addGeometry(Part.LineSegment(App.Vector(23, 20, 0), App.Vector(23, 0, 0)), False)
sketch10.addGeometry(Part.LineSegment(App.Vector(23, 0, 0), App.Vector(43, 0, 0)), False)
sketch10.addGeometry(Part.LineSegment(App.Vector(43, 0, 0), App.Vector(43, 20, 0)), False)
sketch10.addGeometry(Part.LineSegment(App.Vector(43, 20, 0), App.Vector(23, 20, 0)), False)
sketch10.addGeometry(Part.LineSegment(App.Vector(56, 20, 0), App.Vector(56, 0, 0)), False)
sketch10.addGeometry(Part.LineSegment(App.Vector(56, 0, 0), App.Vector(76, 0, 0)), False)
sketch10.addGeometry(Part.LineSegment(App.Vector(76, 0, 0), App.Vector(76, 20, 0)), False)
sketch10.addGeometry(Part.LineSegment(App.Vector(76, 20, 0), App.Vector(56, 20, 0)), False)
sketch10.addGeometry(Part.LineSegment(App.Vector(-10, -35, 0), App.Vector(-10, -55, 0)), False)
sketch10.addGeometry(Part.LineSegment(App.Vector(-10, -55, 0), App.Vector(10, -55, 0)), False)
sketch10.addGeometry(Part.LineSegment(App.Vector(10, -55, 0), App.Vector(10, -35, 0)), False)
sketch10.addGeometry(Part.LineSegment(App.Vector(10, -35, 0), App.Vector(-10, -35, 0)), False)
sketch10.addGeometry(Part.LineSegment(App.Vector(23, -35, 0), App.Vector(23, -55, 0)), False)
sketch10.addGeometry(Part.LineSegment(App.Vector(23, -55, 0), App.Vector(43, -55, 0)), False)
sketch10.addGeometry(Part.LineSegment(App.Vector(43, -55, 0), App.Vector(43, -35, 0)), False)
sketch10.addGeometry(Part.LineSegment(App.Vector(43, -35, 0), App.Vector(23, -35, 0)), False)
sketch10.addGeometry(Part.LineSegment(App.Vector(56, -35, 0), App.Vector(56, -55, 0)), False)
sketch10.addGeometry(Part.LineSegment(App.Vector(56, -55, 0), App.Vector(76, -55, 0)), False)
sketch10.addGeometry(Part.LineSegment(App.Vector(76, -55, 0), App.Vector(76, -35, 0)), False)
sketch10.addGeometry(Part.LineSegment(App.Vector(76, -35, 0), App.Vector(56, -35, 0)), False)
sketch10.addConstraint(Sketcher.Constraint("Coincident", 0, 2, 1, 1))
sketch10.addConstraint(Sketcher.Constraint("Coincident", 1, 2, 2, 1))
sketch10.addConstraint(Sketcher.Constraint("Coincident", 2, 2, 3, 1))
sketch10.addConstraint(Sketcher.Constraint("Coincident", 3, 2, 0, 1))
sketch10.addConstraint(Sketcher.Constraint("Coincident", 4, 2, 5, 1))
sketch10.addConstraint(Sketcher.Constraint("Coincident", 5, 2, 6, 1))
sketch10.addConstraint(Sketcher.Constraint("Coincident", 6, 2, 7, 1))
sketch10.addConstraint(Sketcher.Constraint("Coincident", 7, 2, 4, 1))
sketch10.addConstraint(Sketcher.Constraint("Coincident", 8, 2, 9, 1))
sketch10.addConstraint(Sketcher.Constraint("Coincident", 9, 2, 10, 1))
sketch10.addConstraint(Sketcher.Constraint("Coincident", 10, 2, 11, 1))
sketch10.addConstraint(Sketcher.Constraint("Coincident", 11, 2, 8, 1))
sketch10.addConstraint(Sketcher.Constraint("Coincident", 12, 2, 13, 1))
sketch10.addConstraint(Sketcher.Constraint("Coincident", 13, 2, 14, 1))
sketch10.addConstraint(Sketcher.Constraint("Coincident", 14, 2, 15, 1))
sketch10.addConstraint(Sketcher.Constraint("Coincident", 15, 2, 12, 1))
sketch10.addConstraint(Sketcher.Constraint("Coincident", 16, 2, 17, 1))
sketch10.addConstraint(Sketcher.Constraint("Coincident", 17, 2, 18, 1))
sketch10.addConstraint(Sketcher.Constraint("Coincident", 18, 2, 19, 1))
sketch10.addConstraint(Sketcher.Constraint("Coincident", 19, 2, 16, 1))
sketch10.addConstraint(Sketcher.Constraint("Coincident", 20, 2, 21, 1))
sketch10.addConstraint(Sketcher.Constraint("Coincident", 21, 2, 22, 1))
sketch10.addConstraint(Sketcher.Constraint("Coincident", 22, 2, 23, 1))
sketch10.addConstraint(Sketcher.Constraint("Coincident", 23, 2, 20, 1))
sketch10.addConstraint(Sketcher.Constraint("Vertical", 0))
sketch10.addConstraint(Sketcher.Constraint("Horizontal", 1))
sketch10.addConstraint(Sketcher.Constraint("Vertical", 2))
sketch10.addConstraint(Sketcher.Constraint("Horizontal", 3))
sketch10.addConstraint(Sketcher.Constraint("Vertical", 4))
sketch10.addConstraint(Sketcher.Constraint("Horizontal", 5))
sketch10.addConstraint(Sketcher.Constraint("Vertical", 6))
sketch10.addConstraint(Sketcher.Constraint("Horizontal", 7))
sketch10.addConstraint(Sketcher.Constraint("Vertical", 8))
sketch10.addConstraint(Sketcher.Constraint("Horizontal", 9))
sketch10.addConstraint(Sketcher.Constraint("Vertical", 10))
sketch10.addConstraint(Sketcher.Constraint("Horizontal", 11))
sketch10.addConstraint(Sketcher.Constraint("Vertical", 12))
sketch10.addConstraint(Sketcher.Constraint("Horizontal", 13))
sketch10.addConstraint(Sketcher.Constraint("Vertical", 14))
sketch10.addConstraint(Sketcher.Constraint("Horizontal", 15))
sketch10.addConstraint(Sketcher.Constraint("Vertical", 16))
sketch10.addConstraint(Sketcher.Constraint("Horizontal", 17))
sketch10.addConstraint(Sketcher.Constraint("Vertical", 18))
sketch10.addConstraint(Sketcher.Constraint("Horizontal", 19))
sketch10.addConstraint(Sketcher.Constraint("Vertical", 20))
sketch10.addConstraint(Sketcher.Constraint("Horizontal", 21))
sketch10.addConstraint(Sketcher.Constraint("Vertical", 22))
sketch10.addConstraint(Sketcher.Constraint("Horizontal", 23))
sketch10.addConstraint(Sketcher.Constraint("Symmetric", 0, 2, 1, 2, -1, 1))
sketch10.addConstraint(Sketcher.Constraint("PointOnObject", 4, 2, -1))
sketch10.addConstraint(Sketcher.Constraint("PointOnObject", 8, 2, -1))
sketch10.addConstraint(Sketcher.Constraint("Horizontal", 3, 2, 6, 2))
sketch10.addConstraint(Sketcher.Constraint("Horizontal", 7, 2, 10, 2))
sketch10.addConstraint(Sketcher.Constraint("Horizontal", 13, 2, 16, 2))
sketch10.addConstraint(Sketcher.Constraint("Horizontal", 15, 2, 18, 2))
sketch10.addConstraint(Sketcher.Constraint("Horizontal", 17, 2, 20, 2))
sketch10.addConstraint(Sketcher.Constraint("Horizontal", 19, 2, 22, 2))
sketch10.addConstraint(Sketcher.Constraint("Vertical", 3, 2, 12, 2))
sketch10.addConstraint(Sketcher.Constraint("Vertical", 2, 2, 13, 2))
sketch10.addConstraint(Sketcher.Constraint("Vertical", 7, 2, 16, 2))
sketch10.addConstraint(Sketcher.Constraint("Vertical", 6, 2, 17, 2))
sketch10.addConstraint(Sketcher.Constraint("Vertical", 11, 2, 20, 2))
sketch10.addConstraint(Sketcher.Constraint("Vertical", 10, 2, 21, 2))
sketch10.addConstraint(Sketcher.Constraint("Equal", 3, 5))
sketch10.addConstraint(Sketcher.Constraint("Equal", 7, 9))
sketch10.addConstraint(Sketcher.Constraint("Equal", 23, 0))
sketch10.addConstraint(Sketcher.Constraint("Equal", 10, 12))
sketch10.addConstraint(Sketcher.Constraint("DistanceX", 1, 1, 1, 2, 20.0))
sketch10.addConstraint(Sketcher.Constraint("DistanceX", -1, 1, 4, 2, 23.0))
sketch10.addConstraint(Sketcher.Constraint("DistanceX", -1, 1, 8, 2, 56.0))
sketch10.addConstraint(Sketcher.Constraint("DistanceY", 12, 2, -1, 1, 55.0))
sketch10.setExpression("Constraints[67]", "Params.sketch10_width")
pocket9 = body.newObject("PartDesign::Pocket", "Pocket008")
pocket9.Profile = sketch10
pocket9.setExpression("Length", "Params.pocket9_length")

doc.recompute()
